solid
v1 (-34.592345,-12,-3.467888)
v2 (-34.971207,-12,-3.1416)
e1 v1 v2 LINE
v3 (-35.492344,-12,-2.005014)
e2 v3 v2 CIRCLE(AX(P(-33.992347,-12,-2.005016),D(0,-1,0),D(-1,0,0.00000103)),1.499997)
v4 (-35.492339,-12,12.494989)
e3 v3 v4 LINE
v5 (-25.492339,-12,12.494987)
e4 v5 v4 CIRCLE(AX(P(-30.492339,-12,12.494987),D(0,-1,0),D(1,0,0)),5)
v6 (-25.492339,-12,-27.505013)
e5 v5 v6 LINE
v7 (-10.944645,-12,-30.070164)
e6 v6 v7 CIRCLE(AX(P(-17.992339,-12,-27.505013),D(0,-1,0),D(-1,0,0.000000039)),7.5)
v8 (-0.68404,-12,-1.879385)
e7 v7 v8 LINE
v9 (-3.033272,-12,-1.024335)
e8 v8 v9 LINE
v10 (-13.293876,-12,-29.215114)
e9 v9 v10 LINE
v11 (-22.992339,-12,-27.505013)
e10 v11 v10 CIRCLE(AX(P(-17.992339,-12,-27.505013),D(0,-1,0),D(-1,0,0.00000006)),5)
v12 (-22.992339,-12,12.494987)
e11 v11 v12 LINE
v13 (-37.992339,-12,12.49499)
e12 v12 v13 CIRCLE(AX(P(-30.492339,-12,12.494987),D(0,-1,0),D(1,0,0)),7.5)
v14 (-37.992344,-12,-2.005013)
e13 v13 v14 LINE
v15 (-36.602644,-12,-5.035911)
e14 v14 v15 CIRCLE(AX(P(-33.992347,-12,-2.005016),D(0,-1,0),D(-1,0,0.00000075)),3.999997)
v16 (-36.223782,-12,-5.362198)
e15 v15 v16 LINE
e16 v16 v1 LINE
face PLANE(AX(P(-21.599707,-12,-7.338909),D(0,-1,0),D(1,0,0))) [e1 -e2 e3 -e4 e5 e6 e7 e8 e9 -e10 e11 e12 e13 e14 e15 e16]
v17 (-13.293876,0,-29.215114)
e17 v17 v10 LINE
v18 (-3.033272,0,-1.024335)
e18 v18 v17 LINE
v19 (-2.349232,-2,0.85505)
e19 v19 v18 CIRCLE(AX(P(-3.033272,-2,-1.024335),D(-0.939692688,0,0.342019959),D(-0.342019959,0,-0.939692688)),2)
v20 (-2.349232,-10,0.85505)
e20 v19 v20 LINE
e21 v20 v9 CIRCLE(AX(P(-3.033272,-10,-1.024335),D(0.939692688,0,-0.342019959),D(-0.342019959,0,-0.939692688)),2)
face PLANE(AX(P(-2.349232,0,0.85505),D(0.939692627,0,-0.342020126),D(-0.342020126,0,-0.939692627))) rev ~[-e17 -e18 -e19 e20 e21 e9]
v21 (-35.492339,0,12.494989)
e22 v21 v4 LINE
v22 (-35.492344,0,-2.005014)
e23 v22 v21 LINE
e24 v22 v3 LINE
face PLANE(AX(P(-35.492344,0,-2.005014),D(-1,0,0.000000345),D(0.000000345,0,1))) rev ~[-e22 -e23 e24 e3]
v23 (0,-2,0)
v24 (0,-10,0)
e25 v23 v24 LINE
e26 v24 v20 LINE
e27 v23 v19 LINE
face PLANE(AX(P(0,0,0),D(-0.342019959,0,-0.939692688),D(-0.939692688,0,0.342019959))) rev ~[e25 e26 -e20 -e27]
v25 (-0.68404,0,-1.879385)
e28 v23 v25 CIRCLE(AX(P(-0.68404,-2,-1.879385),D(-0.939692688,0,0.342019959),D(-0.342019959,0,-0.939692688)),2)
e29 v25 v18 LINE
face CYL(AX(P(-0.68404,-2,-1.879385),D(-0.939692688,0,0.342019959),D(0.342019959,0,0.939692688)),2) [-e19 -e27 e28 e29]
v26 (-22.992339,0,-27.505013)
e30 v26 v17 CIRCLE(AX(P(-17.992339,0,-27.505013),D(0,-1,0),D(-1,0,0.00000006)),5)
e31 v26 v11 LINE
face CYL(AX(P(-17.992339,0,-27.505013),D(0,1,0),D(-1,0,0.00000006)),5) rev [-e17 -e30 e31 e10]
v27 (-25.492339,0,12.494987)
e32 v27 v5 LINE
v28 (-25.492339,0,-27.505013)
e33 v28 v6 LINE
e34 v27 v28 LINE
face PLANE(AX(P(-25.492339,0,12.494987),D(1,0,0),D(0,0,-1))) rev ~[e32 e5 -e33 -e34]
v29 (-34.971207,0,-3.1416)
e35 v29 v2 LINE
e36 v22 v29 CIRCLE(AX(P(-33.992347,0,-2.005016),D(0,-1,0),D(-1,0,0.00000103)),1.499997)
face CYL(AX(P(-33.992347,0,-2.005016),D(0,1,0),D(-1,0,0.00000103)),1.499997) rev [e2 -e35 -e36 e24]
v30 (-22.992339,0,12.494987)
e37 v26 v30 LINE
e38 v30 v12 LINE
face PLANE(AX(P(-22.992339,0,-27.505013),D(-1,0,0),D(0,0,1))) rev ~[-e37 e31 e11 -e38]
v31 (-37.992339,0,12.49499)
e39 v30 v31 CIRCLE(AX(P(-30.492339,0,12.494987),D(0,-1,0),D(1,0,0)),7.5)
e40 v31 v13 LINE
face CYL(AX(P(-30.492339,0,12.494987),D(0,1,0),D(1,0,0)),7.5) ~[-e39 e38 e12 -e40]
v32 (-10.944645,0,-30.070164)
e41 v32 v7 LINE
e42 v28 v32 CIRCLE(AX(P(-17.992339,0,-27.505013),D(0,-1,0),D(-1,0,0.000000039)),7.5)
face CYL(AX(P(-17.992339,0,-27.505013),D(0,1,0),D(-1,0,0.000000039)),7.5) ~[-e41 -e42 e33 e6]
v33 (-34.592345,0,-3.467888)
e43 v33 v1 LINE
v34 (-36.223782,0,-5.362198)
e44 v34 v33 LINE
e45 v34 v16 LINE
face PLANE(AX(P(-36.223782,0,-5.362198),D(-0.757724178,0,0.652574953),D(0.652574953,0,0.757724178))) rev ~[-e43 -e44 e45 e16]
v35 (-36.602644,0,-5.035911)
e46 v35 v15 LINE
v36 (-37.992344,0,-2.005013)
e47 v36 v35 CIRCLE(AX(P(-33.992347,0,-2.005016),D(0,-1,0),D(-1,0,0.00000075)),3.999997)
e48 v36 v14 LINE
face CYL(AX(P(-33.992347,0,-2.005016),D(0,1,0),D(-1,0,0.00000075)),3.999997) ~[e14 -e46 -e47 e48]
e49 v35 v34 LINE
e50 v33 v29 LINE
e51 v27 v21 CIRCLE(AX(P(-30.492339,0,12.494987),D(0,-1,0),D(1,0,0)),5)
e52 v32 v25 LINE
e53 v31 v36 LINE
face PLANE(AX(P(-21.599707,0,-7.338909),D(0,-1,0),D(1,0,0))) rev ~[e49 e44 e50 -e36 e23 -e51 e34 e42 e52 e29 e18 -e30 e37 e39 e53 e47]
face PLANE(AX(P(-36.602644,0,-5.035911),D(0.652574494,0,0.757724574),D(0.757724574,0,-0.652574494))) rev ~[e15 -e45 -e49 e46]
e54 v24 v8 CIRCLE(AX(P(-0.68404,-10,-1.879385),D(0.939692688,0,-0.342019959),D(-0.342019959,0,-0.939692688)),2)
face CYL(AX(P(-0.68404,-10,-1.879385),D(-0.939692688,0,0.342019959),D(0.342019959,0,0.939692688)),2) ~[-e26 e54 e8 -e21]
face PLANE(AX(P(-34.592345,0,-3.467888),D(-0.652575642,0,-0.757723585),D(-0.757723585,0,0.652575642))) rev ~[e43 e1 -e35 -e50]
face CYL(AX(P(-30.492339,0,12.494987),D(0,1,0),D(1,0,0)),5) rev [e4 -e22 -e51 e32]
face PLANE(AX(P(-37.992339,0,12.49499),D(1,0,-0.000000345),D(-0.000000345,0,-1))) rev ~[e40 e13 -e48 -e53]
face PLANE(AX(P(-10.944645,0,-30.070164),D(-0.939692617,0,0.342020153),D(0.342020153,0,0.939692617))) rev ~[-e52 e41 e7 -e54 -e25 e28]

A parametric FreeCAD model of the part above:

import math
import FreeCAD as App
import Part
import Sketcher
Q = App.Units.Quantity


def edges_at(feature, points):
    """Names of the edges that pass closest to the given points."""
    edges = feature.Shape.Edges
    near = lambda p: min(range(len(edges)), key=lambda i: edges[i].distToShape(Part.Vertex(*p))[0])
    return sorted({f"Edge{near(p) + 1}" for p in points})

doc = App.newDocument("Part")
body = doc.addObject("PartDesign::Body", "Body")

# Sketch on XZ plane
sketch1 = body.newObject("Sketcher::SketchObject", "Sketch")
sketch1.AttachmentSupport = (doc.getObject("XZ_Plane"), [""])
sketch1.MapMode = "FlatFace"
sketch1.addGeometry([
    Part.LineSegment(App.Vector(-35.49, -2.01, 0), App.Vector(-35.49, 12.49, 0)),  # 0
    Part.ArcOfCircle(Part.Circle(App.Vector(-30.49, 12.49, 0), App.Vector(0, 0, 1), 5), math.radians(0), math.radians(180)),  # 1
    Part.LineSegment(App.Vector(-25.49, 12.49, 0), App.Vector(-25.49, -27.51, 0)),  # 2
    Part.ArcOfCircle(Part.Circle(App.Vector(-17.99, -27.51, 0), App.Vector(0, 0, 1), 7.5), math.radians(180), math.radians(340)),  # 3
    Part.LineSegment(App.Vector(-10.94, -30.07, 0), App.Vector(0, 0, 0)),  # 4
    Part.LineSegment(App.Vector(0, 0, 0), App.Vector(-2.35, 0.86, 0)),  # 5
    Part.LineSegment(App.Vector(-2.35, 0.86, 0), App.Vector(-13.29, -29.22, 0)),  # 6
    Part.ArcOfCircle(Part.Circle(App.Vector(-17.99, -27.51, 0), App.Vector(0, 0, 1), 5), math.radians(180), math.radians(340)),  # 7
    Part.LineSegment(App.Vector(-22.99, -27.51, 0), App.Vector(-22.99, 12.49, 0)),  # 8
    Part.ArcOfCircle(Part.Circle(App.Vector(-30.49, 12.49, 0), App.Vector(0, 0, 1), 7.5), math.radians(0), math.radians(180)),  # 9
    Part.LineSegment(App.Vector(-37.99, 12.49, 0), App.Vector(-37.99, -2.01, 0)),  # 10
    Part.ArcOfCircle(Part.Circle(App.Vector(-33.99, -2.01, 0), App.Vector(0, 0, 1), 4), math.radians(180), math.radians(229)),  # 11
    Part.LineSegment(App.Vector(-36.6, -5.04, 0), App.Vector(-36.22, -5.36, 0)),  # 12
    Part.LineSegment(App.Vector(-36.22, -5.36, 0), App.Vector(-34.59, -3.47, 0)),  # 13
    Part.LineSegment(App.Vector(-34.59, -3.47, 0), App.Vector(-34.97, -3.14, 0)),  # 14
    Part.ArcOfCircle(Part.Circle(App.Vector(-33.99, -2.01, 0), App.Vector(0, 0, 1), 1.5), math.radians(180), math.radians(229)),  # 15
], False)
sketch1.addConstraint([
    Sketcher.Constraint("Tangent", 0, 2, 1, 2),
    Sketcher.Constraint("Tangent", 1, 1, 2, 1),
    Sketcher.Constraint("Tangent", 2, 2, 3, 1),
    Sketcher.Constraint("Tangent", 3, 2, 4, 1),
    Sketcher.Constraint("Coincident", 4, 2, 5, 1),
    Sketcher.Constraint("Coincident", 5, 2, 6, 1),
    Sketcher.Constraint("Tangent", 6, 2, 7, 2),
    Sketcher.Constraint("Tangent", 7, 1, 8, 1),
    Sketcher.Constraint("Tangent", 8, 2, 9, 1),
    Sketcher.Constraint("Tangent", 9, 2, 10, 1),
    Sketcher.Constraint("Tangent", 10, 2, 11, 1),
    Sketcher.Constraint("Tangent", 11, 2, 12, 1),
    Sketcher.Constraint("Coincident", 12, 2, 13, 1),
    Sketcher.Constraint("Coincident", 13, 2, 14, 1),
    Sketcher.Constraint("Tangent", 14, 2, 15, 2),
    Sketcher.Constraint("Tangent", 15, 1, 0, 1),
    Sketcher.Constraint("Vertical", 2),
    Sketcher.Constraint("Vertical", 8),
    Sketcher.Constraint("Coincident", 4, 2, -1, 1),
    Sketcher.Constraint("Coincident", 7, 3, 3, 3),
    Sketcher.Constraint("Coincident", 9, 3, 1, 3),
    Sketcher.Constraint("Coincident", 15, 3, 11, 3),
    Sketcher.Constraint("Equal", 1, 7),
    Sketcher.Constraint("Perpendicular", 4, 5),
    Sketcher.Constraint("Perpendicular", 5, 6),
    Sketcher.Constraint("Parallel", 0, 10),
    Sketcher.Constraint("Perpendicular", 12, 13),
    Sketcher.Constraint("Perpendicular", 13, 14),
    Sketcher.Constraint("Horizontal", 0, 2, 9, 2),
    Sketcher.Constraint("Radius", 1, Q("5 mm")),
    Sketcher.Constraint("Radius", 3, Q("7.5 mm")),
    Sketcher.Constraint("DistanceY", 2, 2, 2, 1, Q("40 mm")),
    Sketcher.Constraint("Angle", 4, Q("69.999999 deg")),
    Sketcher.Constraint("Distance", 4, Q("32 mm")),
    Sketcher.Constraint("Distance", 12, Q("0.5 mm")),
    Sketcher.Constraint("DistanceY", 10, 2, 1, 3, Q("14.5 mm")),
    Sketcher.Constraint("DistanceX", 13, 2, 15, 3, Q("0.599998 mm")),
    Sketcher.Constraint("DistanceX", 10, 2, 13, 2, Q("3.399999 mm")),
])
pad1 = body.newObject("PartDesign::Pad", "Pad")
pad1.Profile = sketch1
pad1.Length = 12
doc.recompute()

fillet = body.newObject("PartDesign::Fillet", "Fillet")
fillet.Base = (pad1, edges_at(pad1, [(-1.175, -12, 0.428)]))
fillet.Radius = 2
doc.recompute()

fillet2 = body.newObject("PartDesign::Fillet", "Fillet001")
fillet2.Base = (fillet, edges_at(fillet, [(-1.175, 0, 0.428)]))
fillet2.Radius = 2

doc.recompute()
